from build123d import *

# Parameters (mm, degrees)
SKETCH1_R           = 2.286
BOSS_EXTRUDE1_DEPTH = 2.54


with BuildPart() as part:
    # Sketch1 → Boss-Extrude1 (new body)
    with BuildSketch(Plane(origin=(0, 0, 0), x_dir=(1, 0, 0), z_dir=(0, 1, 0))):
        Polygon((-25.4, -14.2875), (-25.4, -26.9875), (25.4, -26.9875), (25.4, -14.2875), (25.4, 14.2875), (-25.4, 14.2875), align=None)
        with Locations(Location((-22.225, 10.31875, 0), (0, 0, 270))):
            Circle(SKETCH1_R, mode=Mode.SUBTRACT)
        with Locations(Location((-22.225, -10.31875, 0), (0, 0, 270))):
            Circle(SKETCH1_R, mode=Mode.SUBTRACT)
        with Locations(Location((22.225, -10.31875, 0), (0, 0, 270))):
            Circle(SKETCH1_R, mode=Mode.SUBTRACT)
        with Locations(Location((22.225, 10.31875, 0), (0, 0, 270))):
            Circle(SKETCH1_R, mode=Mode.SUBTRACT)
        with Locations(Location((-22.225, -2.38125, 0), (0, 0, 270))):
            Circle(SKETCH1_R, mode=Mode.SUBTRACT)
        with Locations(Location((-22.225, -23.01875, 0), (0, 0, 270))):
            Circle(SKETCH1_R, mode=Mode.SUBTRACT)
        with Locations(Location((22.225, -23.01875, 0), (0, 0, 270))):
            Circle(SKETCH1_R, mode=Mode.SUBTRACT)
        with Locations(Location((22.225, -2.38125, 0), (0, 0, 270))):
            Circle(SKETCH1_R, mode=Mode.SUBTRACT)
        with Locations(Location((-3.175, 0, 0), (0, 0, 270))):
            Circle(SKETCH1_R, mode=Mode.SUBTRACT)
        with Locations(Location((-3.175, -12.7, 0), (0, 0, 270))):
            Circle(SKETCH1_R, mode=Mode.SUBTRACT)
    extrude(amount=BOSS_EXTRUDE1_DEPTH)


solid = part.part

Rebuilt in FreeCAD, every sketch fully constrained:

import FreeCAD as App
import Part
import Sketcher
from FreeCAD import Vector
Q = App.Units.Quantity

doc = App.newDocument("Part")
body = doc.addObject("PartDesign::Body", "Body")

# Sketch on XZ plane
sketch1 = body.newObject("Sketcher::SketchObject", "Sketch")
sketch1.AttachmentSupport = (doc.getObject("XZ_Plane"), [""])
sketch1.MapMode = "FlatFace"
sketch1.addGeometry(Part.LineSegment(Vector(-25.4, 27, 0), Vector(25.4, 27, 0)), False)
sketch1.addGeometry(Part.LineSegment(Vector(25.4, 27, 0), Vector(25.4, -14.3, 0)), False)
sketch1.addGeometry(Part.LineSegment(Vector(25.4, -14.3, 0), Vector(-25.4, -14.3, 0)), False)
sketch1.addGeometry(Part.LineSegment(Vector(-25.4, -14.3, 0), Vector(-25.4, 27, 0)), False)
sketch1.addGeometry(Part.Circle(Vector(-22.2, 23, 0), Vector(0, 0, 1), 2.3), False)
sketch1.addGeometry(Part.Circle(Vector(-22.2, 10.3, 0), Vector(0, 0, 1), 2.3), False)
sketch1.addGeometry(Part.Circle(Vector(-3.2, 12.7, 0), Vector(0, 0, 1), 2.3), False)
sketch1.addGeometry(Part.Circle(Vector(22.2, 23, 0), Vector(0, 0, 1), 2.3), False)
sketch1.addGeometry(Part.Circle(Vector(22.2, 10.3, 0), Vector(0, 0, 1), 2.3), False)
sketch1.addGeometry(Part.Circle(Vector(-22.2, 2.4, 0), Vector(0, 0, 1), 2.3), False)
sketch1.addGeometry(Part.Circle(Vector(-3.2, 0, 0), Vector(0, 0, 1), 2.3), False)
sketch1.addGeometry(Part.Circle(Vector(-22.2, -10.3, 0), Vector(0, 0, 1), 2.3), False)
sketch1.addGeometry(Part.Circle(Vector(22.2, 2.4, 0), Vector(0, 0, 1), 2.3), False)
sketch1.addGeometry(Part.Circle(Vector(22.2, -10.3, 0), Vector(0, 0, 1), 2.3), False)
sketch1.addConstraint(Sketcher.Constraint("Coincident", 0, 2, 1, 1))
sketch1.addConstraint(Sketcher.Constraint("Coincident", 1, 2, 2, 1))
sketch1.addConstraint(Sketcher.Constraint("Coincident", 2, 2, 3, 1))
sketch1.addConstraint(Sketcher.Constraint("Coincident", 3, 2, 0, 1))
sketch1.addConstraint(Sketcher.Constraint("Horizontal", 0))
sketch1.addConstraint(Sketcher.Constraint("Vertical", 1))
sketch1.addConstraint(Sketcher.Constraint("Horizontal", 2))
sketch1.addConstraint(Sketcher.Constraint("Vertical", 3))
sketch1.addConstraint(Sketcher.Constraint("Equal", 4, 5))
sketch1.addConstraint(Sketcher.Constraint("Equal", 5, 6))
sketch1.addConstraint(Sketcher.Constraint("Equal", 6, 7))
sketch1.addConstraint(Sketcher.Constraint("Equal", 7, 8))
sketch1.addConstraint(Sketcher.Constraint("Equal", 8, 9))
sketch1.addConstraint(Sketcher.Constraint("Equal", 9, 10))
sketch1.addConstraint(Sketcher.Constraint("Equal", 10, 11))
sketch1.addConstraint(Sketcher.Constraint("Equal", 11, 12))
sketch1.addConstraint(Sketcher.Constraint("Equal", 12, 13))
sketch1.addConstraint(Sketcher.Constraint("Symmetric", 8, 3, 11, 3, -1, 1))
sketch1.addConstraint(Sketcher.Constraint("Symmetric", 5, 3, 13, 3, -1, 1))
sketch1.addConstraint(Sketcher.Constraint("Symmetric", 4, 3, 7, 3, -2))
sketch1.addConstraint(Sketcher.Constraint("Symmetric", 5, 3, 8, 3, -2))
sketch1.addConstraint(Sketcher.Constraint("Symmetric", 9, 3, 12, 3, -2))
sketch1.addConstraint(Sketcher.Constraint("PointOnObject", 10, 3, -1))
sketch1.addConstraint(Sketcher.Constraint("Vertical", 4, 3, 5, 3))
sketch1.addConstraint(Sketcher.Constraint("Vertical", 5, 3, 9, 3))
sketch1.addConstraint(Sketcher.Constraint("Vertical", 6, 3, 10, 3))
sketch1.addConstraint(Sketcher.Constraint("Diameter", 4, Q("0.18 in")))
sketch1.addConstraint(Sketcher.Constraint("DistanceX", 0, 1, 0, 2, Q("2 in")))
sketch1.addConstraint(Sketcher.Constraint("DistanceX", -1, 1, 0, 2, Q("1 in")))
sketch1.addConstraint(Sketcher.Constraint("DistanceX", 6, 3, 7, 3, Q("1 in")))
sketch1.addConstraint(Sketcher.Constraint("DistanceY", -1, 1, 6, 3, Q("0.5 in")))
sketch1.addConstraint(Sketcher.Constraint("DistanceY", 5, 3, 4, 3, Q("0.5 in")))
sketch1.addConstraint(Sketcher.Constraint("DistanceY", 11, 3, 9, 3, Q("0.5 in")))
sketch1.addConstraint(Sketcher.Constraint("DistanceY", 1, 2, 1, 1, Q("1.625 in")))
sketch1.addConstraint(Sketcher.Constraint("DistanceX", 5, 3, 6, 3, Q("0.75 in")))
sketch1.addConstraint(Sketcher.Constraint("DistanceY", -1, 1, 4, 3, Q("0.90625 in")))
sketch1.addConstraint(Sketcher.Constraint("DistanceY", -1, 1, 0, 2, Q("1.0625 in")))
pad1 = body.newObject("PartDesign::Pad", "Pad")
pad1.Profile = sketch1
pad1.Length = Q("0.1 in")
pad1.Reversed = True

doc.recompute()
